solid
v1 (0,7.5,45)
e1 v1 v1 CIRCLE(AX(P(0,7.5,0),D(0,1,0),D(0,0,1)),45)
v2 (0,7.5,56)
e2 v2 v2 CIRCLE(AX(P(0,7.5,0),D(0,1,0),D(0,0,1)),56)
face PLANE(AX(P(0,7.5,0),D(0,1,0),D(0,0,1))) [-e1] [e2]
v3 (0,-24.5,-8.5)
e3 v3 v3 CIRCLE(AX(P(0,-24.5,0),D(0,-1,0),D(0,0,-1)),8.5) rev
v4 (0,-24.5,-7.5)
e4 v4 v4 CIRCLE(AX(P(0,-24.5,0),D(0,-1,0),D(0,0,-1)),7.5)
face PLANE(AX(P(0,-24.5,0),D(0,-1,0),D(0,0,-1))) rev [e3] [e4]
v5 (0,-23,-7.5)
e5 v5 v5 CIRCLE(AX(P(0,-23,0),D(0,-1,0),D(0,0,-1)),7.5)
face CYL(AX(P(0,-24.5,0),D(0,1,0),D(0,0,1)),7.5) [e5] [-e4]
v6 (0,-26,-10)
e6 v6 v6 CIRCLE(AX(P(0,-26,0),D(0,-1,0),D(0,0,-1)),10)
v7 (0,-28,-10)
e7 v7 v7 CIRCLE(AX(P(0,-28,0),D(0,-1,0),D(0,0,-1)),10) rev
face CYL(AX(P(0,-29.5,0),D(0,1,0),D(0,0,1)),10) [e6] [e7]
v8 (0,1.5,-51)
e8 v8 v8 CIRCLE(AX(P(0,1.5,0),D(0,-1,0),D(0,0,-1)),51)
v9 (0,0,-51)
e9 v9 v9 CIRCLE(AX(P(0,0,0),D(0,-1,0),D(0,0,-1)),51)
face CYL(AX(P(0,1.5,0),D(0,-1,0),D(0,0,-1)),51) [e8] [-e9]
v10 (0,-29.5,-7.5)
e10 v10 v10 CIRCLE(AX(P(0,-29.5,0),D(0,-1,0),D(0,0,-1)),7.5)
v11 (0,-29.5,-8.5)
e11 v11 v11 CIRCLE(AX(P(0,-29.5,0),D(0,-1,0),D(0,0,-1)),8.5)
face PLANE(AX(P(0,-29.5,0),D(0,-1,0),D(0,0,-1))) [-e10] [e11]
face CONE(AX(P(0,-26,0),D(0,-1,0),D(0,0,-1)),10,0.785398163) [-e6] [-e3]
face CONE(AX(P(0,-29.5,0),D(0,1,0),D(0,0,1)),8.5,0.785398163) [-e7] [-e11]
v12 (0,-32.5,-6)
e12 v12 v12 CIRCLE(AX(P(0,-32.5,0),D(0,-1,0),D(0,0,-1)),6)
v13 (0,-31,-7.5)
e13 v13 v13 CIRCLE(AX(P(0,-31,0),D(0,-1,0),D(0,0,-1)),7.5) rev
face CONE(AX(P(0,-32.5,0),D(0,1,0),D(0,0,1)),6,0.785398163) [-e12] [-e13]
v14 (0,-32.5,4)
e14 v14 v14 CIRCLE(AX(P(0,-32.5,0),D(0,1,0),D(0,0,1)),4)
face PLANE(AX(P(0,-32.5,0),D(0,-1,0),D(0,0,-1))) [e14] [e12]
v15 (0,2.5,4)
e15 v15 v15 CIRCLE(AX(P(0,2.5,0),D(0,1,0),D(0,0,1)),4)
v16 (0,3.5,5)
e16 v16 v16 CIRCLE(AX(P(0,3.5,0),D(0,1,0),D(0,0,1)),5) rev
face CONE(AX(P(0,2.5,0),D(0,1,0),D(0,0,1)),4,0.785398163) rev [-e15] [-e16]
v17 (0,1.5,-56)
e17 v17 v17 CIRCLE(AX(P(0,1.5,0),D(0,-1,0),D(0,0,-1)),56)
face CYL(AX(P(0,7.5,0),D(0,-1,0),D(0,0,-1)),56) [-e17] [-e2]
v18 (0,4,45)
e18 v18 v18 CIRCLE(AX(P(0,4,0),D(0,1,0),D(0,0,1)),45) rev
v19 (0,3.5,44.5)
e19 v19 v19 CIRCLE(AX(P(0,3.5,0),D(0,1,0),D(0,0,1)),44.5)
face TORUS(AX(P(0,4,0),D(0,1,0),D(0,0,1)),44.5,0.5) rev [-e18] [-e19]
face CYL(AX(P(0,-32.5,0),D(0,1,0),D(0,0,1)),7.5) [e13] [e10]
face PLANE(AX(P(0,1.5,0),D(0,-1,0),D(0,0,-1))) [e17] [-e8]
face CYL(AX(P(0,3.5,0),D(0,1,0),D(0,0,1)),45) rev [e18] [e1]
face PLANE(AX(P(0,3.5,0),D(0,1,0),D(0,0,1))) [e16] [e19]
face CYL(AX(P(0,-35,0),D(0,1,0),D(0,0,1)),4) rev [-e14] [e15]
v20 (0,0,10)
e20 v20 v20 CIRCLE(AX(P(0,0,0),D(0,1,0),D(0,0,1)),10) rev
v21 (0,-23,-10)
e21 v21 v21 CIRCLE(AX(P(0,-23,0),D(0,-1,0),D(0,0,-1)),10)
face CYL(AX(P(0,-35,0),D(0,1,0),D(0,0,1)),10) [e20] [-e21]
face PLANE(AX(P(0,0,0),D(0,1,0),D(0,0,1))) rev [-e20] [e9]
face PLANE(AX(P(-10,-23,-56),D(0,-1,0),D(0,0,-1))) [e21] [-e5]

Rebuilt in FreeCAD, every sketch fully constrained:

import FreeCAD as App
import Part
import Sketcher
from FreeCAD import Vector
Q = App.Units.Quantity


def edges_at(feature, points):
    """Names of the edges that pass closest to the given points."""
    edges = feature.Shape.Edges
    near = lambda p: min(range(len(edges)), key=lambda i: edges[i].distToShape(Part.Vertex(*p))[0])
    return sorted({f"Edge{near(p) + 1}" for p in points})

doc = App.newDocument("Part")
params = doc.addObject("Spreadsheet::Sheet", "Params")
for row, (alias, value) in enumerate([
    ("sketch1_diameter", "112 mm"),
    ("pad1_length", "7.5 mm"),
    ("sketch2_diameter", "20 mm"),
    ("pad2_length", "35 mm"),
    ("sketch3_diameter", "90 mm"),
    ("pocket1_length", "4 mm"),
    ("sketch4_diameter", "8 mm"),
    ("chamfer_size", "1 mm"),
    ("sketch5_length", "1.5 mm"),
    ("sketch5_height", "2.75 mm"),
    ("sketch6_height", "1 mm"),
    ("sketch6_width", "1.75 mm"),
    ("sketch6_length", "1.25 mm"),
    ("sketch7_width", "20 mm"),
    ("sketch8_diameter", "15 mm"),
    ("pad3_length", "1.5 mm"),
    ("sketch9_diameter", "20 mm"),
    ("pad4_length", "5 mm"),
    ("sketch10_diameter", "15 mm"),
    ("pad5_length", "3 mm"),
    ("chamfer2_size", "1.5 mm"),
    ("chamfer3_size", "1.5 mm"),
    ("chamfer4_size", "1.5 mm"),
    ("sketch11_diameter", "8 mm"),
    ("sketch12_diameter", "102 mm"),
    ("pocket7_length", "1.5 mm"),
    ("fillet_radius", "0.5 mm"),
], start=1):
    params.set(f"A{row}", alias)
    params.set(f"B{row}", "=" + value)
    params.setAlias(f"B{row}", alias)

body = doc.addObject("PartDesign::Body", "Body")

sketch1 = body.newObject("Sketcher::SketchObject", "Sketch")
sketch1.AttachmentSupport = (doc.getObject("XZ_Plane"), [""])
sketch1.MapMode = "FlatFace"
sketch1.addGeometry(Part.Circle(Vector(0, 0, 0), Vector(0, 0, 1), 56), False)
sketch1.addConstraint(Sketcher.Constraint("Coincident", 0, 3, -1, 1))
sketch1.addConstraint(Sketcher.Constraint("Diameter", 0, Q("112 mm")))
sketch1.setExpression("Constraints[1]", "Params.sketch1_diameter")
pad1 = body.newObject("PartDesign::Pad", "Pad")
pad1.Profile = sketch1
pad1.setExpression("Length", "Params.pad1_length")
pad1.Reversed = True

sketch2 = body.newObject("Sketcher::SketchObject", "Sketch001")
sketch2.AttachmentSupport = (doc.getObject("XZ_Plane"), [""])
sketch2.MapMode = "FlatFace"
sketch2.addGeometry(Part.Circle(Vector(0, 0, 0), Vector(0, 0, 1), 10), False)
sketch2.addConstraint(Sketcher.Constraint("Coincident", 0, 3, -1, 1))
sketch2.addConstraint(Sketcher.Constraint("Diameter", 0, Q("20 mm")))
sketch2.setExpression("Constraints[1]", "Params.sketch2_diameter")
pad2 = body.newObject("PartDesign::Pad", "Pad001")
pad2.Profile = sketch2
pad2.setExpression("Length", "Params.pad2_length")

sketch3 = body.newObject("Sketcher::SketchObject", "Sketch002")
sketch3.AttachmentSupport = (doc.getObject("XZ_Plane"), [""])
sketch3.MapMode = "FlatFace"
sketch3.AttachmentOffset = App.Placement(Vector(0, 0, -7.5), App.Rotation())
sketch3.addGeometry(Part.Circle(Vector(0, 0, 0), Vector(0, 0, 1), 45), False)
sketch3.addConstraint(Sketcher.Constraint("Coincident", 0, 3, -1, 1))
sketch3.addConstraint(Sketcher.Constraint("Diameter", 0, Q("90 mm")))
sketch3.setExpression("Constraints[1]", "Params.sketch3_diameter")
pocket1 = body.newObject("PartDesign::Pocket", "Pocket")
pocket1.Profile = sketch3
pocket1.setExpression("Length", "Params.pocket1_length")
pocket1.Reversed = True

sketch4 = body.newObject("Sketcher::SketchObject", "Sketch003")
sketch4.AttachmentSupport = (doc.getObject("XZ_Plane"), [""])
sketch4.MapMode = "FlatFace"
sketch4.AttachmentOffset = App.Placement(Vector(0, 0, -3.5), App.Rotation())
sketch4.addGeometry(Part.Circle(Vector(0, 0, 0), Vector(0, 0, 1), 4), False)
sketch4.addConstraint(Sketcher.Constraint("Coincident", 0, 3, -1, 1))
sketch4.addConstraint(Sketcher.Constraint("Diameter", 0, Q("8 mm")))
sketch4.setExpression("Constraints[1]", "Params.sketch4_diameter")
pocket2 = body.newObject("PartDesign::Pocket", "Pocket001")
pocket2.Profile = sketch4
pocket2.Type = "ThroughAll"
pocket2.Reversed = True
doc.recompute()

chamfer = body.newObject("PartDesign::Chamfer", "Chamfer")
chamfer.Base = (pocket2, edges_at(pocket2, [(0, 3.5, -4)]))
chamfer.setExpression("Size", "Params.chamfer_size")

sketch5 = body.newObject("Sketcher::SketchObject", "Sketch004")
sketch5.AttachmentSupport = (doc.getObject("XY_Plane"), [""])
sketch5.MapMode = "FlatFace"
sketch5.AttachmentOffset = App.Placement(Vector(0, 0, 10), App.Rotation())
sketch5.addGeometry(Part.LineSegment(Vector(-8.93934, -23, 0), Vector(-10, -23, 0)), False)
sketch5.addGeometry(Part.LineSegment(Vector(-10, -23, 0), Vector(-10, -25.75, 0)), False)
sketch5.addGeometry(Part.LineSegment(Vector(-10, -25.75, 0), Vector(-8.93934, -24.68934, 0)), False)
sketch5.addGeometry(Part.LineSegment(Vector(-8.93934, -24.68934, 0), Vector(-8.93934, -23, 0)), False)
sketch5.addConstraint(Sketcher.Constraint("Coincident", 0, 2, 1, 1))
sketch5.addConstraint(Sketcher.Constraint("Coincident", 1, 2, 2, 1))
sketch5.addConstraint(Sketcher.Constraint("Coincident", 2, 2, 3, 1))
sketch5.addConstraint(Sketcher.Constraint("Coincident", 3, 2, 0, 1))
sketch5.addConstraint(Sketcher.Constraint("Horizontal", 0))
sketch5.addConstraint(Sketcher.Constraint("Vertical", 1))
sketch5.addConstraint(Sketcher.Constraint("Vertical", 3))
sketch5.addConstraint(Sketcher.Constraint("Angle", 2, Q("45 deg")))
sketch5.addConstraint(Sketcher.Constraint("DistanceX", 0, 2, -1, 1, Q("10 mm")))
sketch5.addConstraint(Sketcher.Constraint("DistanceY", 0, 2, -1, 1, Q("23 mm")))
sketch5.addConstraint(Sketcher.Constraint("Distance", 2, Q("1.5 mm")))
sketch5.addConstraint(Sketcher.Constraint("DistanceY", 1, 2, 1, 1, Q("2.75 mm")))
sketch5.setExpression("Constraints[10]", "Params.sketch5_length")
sketch5.setExpression("Constraints[11]", "Params.sketch5_height")
pocket3 = body.newObject("PartDesign::Pocket", "Pocket002")
pocket3.Profile = sketch5
pocket3.Type = "ThroughAll"
doc.recompute()

mirrored = body.newObject("PartDesign::Mirrored", "Mirrored")
mirrored.Originals = [pocket3]
mirrored.MirrorPlane = (doc.getObject("YZ_Plane"), [""])
body.Tip = mirrored

sketch6 = body.newObject("Sketcher::SketchObject", "Sketch005")
sketch6.AttachmentSupport = (doc.getObject("XY_Plane"), [""])
sketch6.MapMode = "FlatFace"
sketch6.AttachmentOffset = App.Placement(Vector(0, 0, 10), App.Rotation())
sketch6.addGeometry(Part.LineSegment(Vector(-10, -32.25, 0), Vector(-10, -35, 0)), False)
sketch6.addGeometry(Part.LineSegment(Vector(-10, -35, 0), Vector(-8.25, -35, 0)), False)
sketch6.addGeometry(Part.LineSegment(Vector(-8.25, -35, 0), Vector(-9.116117, -34.133883, 0)), False)
sketch6.addGeometry(Part.LineSegment(Vector(-9.116117, -34.133883, 0), Vector(-9.116117, -33.133883, 0)), False)
sketch6.addGeometry(Part.LineSegment(Vector(-9.116117, -33.133883, 0), Vector(-10, -32.25, 0)), False)
sketch6.addConstraint(Sketcher.Constraint("Coincident", 0, 2, 1, 1))
sketch6.addConstraint(Sketcher.Constraint("Coincident", 1, 2, 2, 1))
sketch6.addConstraint(Sketcher.Constraint("Coincident", 2, 2, 3, 1))
sketch6.addConstraint(Sketcher.Constraint("Coincident", 3, 2, 4, 1))
sketch6.addConstraint(Sketcher.Constraint("Coincident", 4, 2, 0, 1))
sketch6.addConstraint(Sketcher.Constraint("Vertical", 0))
sketch6.addConstraint(Sketcher.Constraint("Horizontal", 1))
sketch6.addConstraint(Sketcher.Constraint("Vertical", 3))
sketch6.addConstraint(Sketcher.Constraint("Parallel", 2, 4))
sketch6.addConstraint(Sketcher.Constraint("DistanceY", 3, 1, 3, 2, Q("1 mm")))
sketch6.addConstraint(Sketcher.Constraint("Angle", 2, Q("135 deg")))
sketch6.addConstraint(Sketcher.Constraint("DistanceX", 0, 2, -1, 1, Q("10 mm")))
sketch6.addConstraint(Sketcher.Constraint("DistanceY", 0, 2, -1, 1, Q("35 mm")))
sketch6.addConstraint(Sketcher.Constraint("DistanceX", 1, 1, 1, 2, Q("1.75 mm")))
sketch6.addConstraint(Sketcher.Constraint("Distance", 4, Q("1.25 mm")))
sketch6.setExpression("Constraints[9]", "Params.sketch6_height")
sketch6.setExpression("Constraints[13]", "Params.sketch6_width")
sketch6.setExpression("Constraints[14]", "Params.sketch6_length")
pocket4 = body.newObject("PartDesign::Pocket", "Pocket003")
pocket4.Profile = sketch6
pocket4.Type = "ThroughAll"
doc.recompute()

mirrored2 = body.newObject("PartDesign::Mirrored", "Mirrored001")
mirrored2.Originals = [pocket4]
mirrored2.MirrorPlane = (doc.getObject("YZ_Plane"), [""])
body.Tip = mirrored2

sketch7 = body.newObject("Sketcher::SketchObject", "Sketch006")
sketch7.AttachmentSupport = (doc.getObject("XY_Plane"), [""])
sketch7.MapMode = "FlatFace"
sketch7.AttachmentOffset = App.Placement(Vector(0, 0, 10), App.Rotation())
sketch7.addGeometry(Part.LineSegment(Vector(-10, -23, 0), Vector(-10, -35.483117, 0)), False)
sketch7.addGeometry(Part.LineSegment(Vector(-10, -35.483117, 0), Vector(10, -35.483117, 0)), False)
sketch7.addGeometry(Part.LineSegment(Vector(10, -35.483117, 0), Vector(10, -23, 0)), False)
sketch7.addGeometry(Part.LineSegment(Vector(10, -23, 0), Vector(-10, -23, 0)), False)
sketch7.addConstraint(Sketcher.Constraint("Coincident", 0, 2, 1, 1))
sketch7.addConstraint(Sketcher.Constraint("Coincident", 1, 2, 2, 1))
sketch7.addConstraint(Sketcher.Constraint("Coincident", 2, 2, 3, 1))
sketch7.addConstraint(Sketcher.Constraint("Coincident", 3, 2, 0, 1))
sketch7.addConstraint(Sketcher.Constraint("Vertical", 0))
sketch7.addConstraint(Sketcher.Constraint("Horizontal", 1))
sketch7.addConstraint(Sketcher.Constraint("Vertical", 2))
sketch7.addConstraint(Sketcher.Constraint("Horizontal", 3))
sketch7.addConstraint(Sketcher.Constraint("DistanceX", 1, 1, 1, 2, Q("20 mm")))
sketch7.addConstraint(Sketcher.Constraint("DistanceX", 0, 2, -1, 1, Q("10 mm")))
sketch7.addConstraint(Sketcher.Constraint("DistanceY", 2, 2, -1, 1, Q("23 mm")))
sketch7.addConstraint(Sketcher.Constraint("DistanceY", 0, 2, 0, 1, Q("12.483117 mm")))
sketch7.setExpression("Constraints[8]", "Params.sketch7_width")
pocket5 = body.newObject("PartDesign::Pocket", "Pocket004")
pocket5.Profile = sketch7
pocket5.Type = "ThroughAll"

sketch8 = body.newObject("Sketcher::SketchObject", "Sketch007")
sketch8.AttachmentSupport = (doc.getObject("XZ_Plane"), [""])
sketch8.MapMode = "FlatFace"
sketch8.AttachmentOffset = App.Placement(Vector(0, 0, 23), App.Rotation())
sketch8.addGeometry(Part.Circle(Vector(0, 0, 0), Vector(0, 0, 1), 7.5), False)
sketch8.addConstraint(Sketcher.Constraint("Coincident", 0, 3, -1, 1))
sketch8.addConstraint(Sketcher.Constraint("Diameter", 0, Q("15 mm")))
sketch8.setExpression("Constraints[1]", "Params.sketch8_diameter")
pad3 = body.newObject("PartDesign::Pad", "Pad002")
pad3.Profile = sketch8
pad3.setExpression("Length", "Params.pad3_length")

sketch9 = body.newObject("Sketcher::SketchObject", "Sketch008")
sketch9.AttachmentSupport = (doc.getObject("XZ_Plane"), [""])
sketch9.MapMode = "FlatFace"
sketch9.AttachmentOffset = App.Placement(Vector(0, 0, 24.5), App.Rotation())
sketch9.addGeometry(Part.Circle(Vector(0, 0, 0), Vector(0, 0, 1), 10), False)
sketch9.addConstraint(Sketcher.Constraint("Coincident", 0, 3, -1, 1))
sketch9.addConstraint(Sketcher.Constraint("Diameter", 0, Q("20 mm")))
sketch9.setExpression("Constraints[1]", "Params.sketch9_diameter")
pad4 = body.newObject("PartDesign::Pad", "Pad003")
pad4.Profile = sketch9
pad4.setExpression("Length", "Params.pad4_length")

sketch10 = body.newObject("Sketcher::SketchObject", "Sketch009")
sketch10.AttachmentSupport = (doc.getObject("XZ_Plane"), [""])
sketch10.MapMode = "FlatFace"
sketch10.AttachmentOffset = App.Placement(Vector(0, 0, 29.5), App.Rotation())
sketch10.addGeometry(Part.Circle(Vector(0, 0, 0), Vector(0, 0, 1), 7.5), False)
sketch10.addConstraint(Sketcher.Constraint("Coincident", 0, 3, -1, 1))
sketch10.addConstraint(Sketcher.Constraint("Diameter", 0, Q("15 mm")))
sketch10.setExpression("Constraints[1]", "Params.sketch10_diameter")
pad5 = body.newObject("PartDesign::Pad", "Pad004")
pad5.Profile = sketch10
pad5.setExpression("Length", "Params.pad5_length")
doc.recompute()

chamfer2 = body.newObject("PartDesign::Chamfer", "Chamfer001")
chamfer2.Base = (pad5, edges_at(pad5, [(0, -32.5, 7.5)]))
chamfer2.setExpression("Size", "Params.chamfer2_size")
doc.recompute()

chamfer3 = body.newObject("PartDesign::Chamfer", "Chamfer002")
chamfer3.Base = (chamfer2, edges_at(chamfer2, [(0, -24.5, -10)]))
chamfer3.setExpression("Size", "Params.chamfer3_size")
doc.recompute()

chamfer4 = body.newObject("PartDesign::Chamfer", "Chamfer003")
chamfer4.Base = (chamfer3, edges_at(chamfer3, [(0, -29.5, -10)]))
chamfer4.setExpression("Size", "Params.chamfer4_size")

sketch11 = body.newObject("Sketcher::SketchObject", "Sketch010")
sketch11.AttachmentSupport = (doc.getObject("XZ_Plane"), [""])
sketch11.MapMode = "FlatFace"
sketch11.AttachmentOffset = App.Placement(Vector(0, 0, 23), App.Rotation())
sketch11.addGeometry(Part.Circle(Vector(0, 0, 0), Vector(0, 0, 1), 4), False)
sketch11.addConstraint(Sketcher.Constraint("Coincident", 0, 3, -1, 1))
sketch11.addConstraint(Sketcher.Constraint("Diameter", 0, Q("8 mm")))
sketch11.setExpression("Constraints[1]", "Params.sketch11_diameter")
pocket6 = body.newObject("PartDesign::Pocket", "Pocket005")
pocket6.Profile = sketch11
pocket6.Type = "ThroughAll"
pocket6.Reversed = True

sketch12 = body.newObject("Sketcher::SketchObject", "Sketch011")
sketch12.AttachmentSupport = (doc.getObject("XZ_Plane"), [""])
sketch12.MapMode = "FlatFace"
sketch12.addGeometry(Part.LineSegment(Vector(-73.336, 73.336, 0), Vector(-73.336, -73.336, 0)), False)
sketch12.addGeometry(Part.LineSegment(Vector(-73.336, -73.336, 0), Vector(73.336, -73.336, 0)), False)
sketch12.addGeometry(Part.LineSegment(Vector(73.336, -73.336, 0), Vector(73.336, 73.336, 0)), False)
sketch12.addGeometry(Part.LineSegment(Vector(73.336, 73.336, 0), Vector(-73.336, 73.336, 0)), False)
sketch12.addGeometry(Part.Circle(Vector(0, 0, 0), Vector(0, 0, 1), 51), False)
sketch12.addConstraint(Sketcher.Constraint("Coincident", 0, 2, 1, 1))
sketch12.addConstraint(Sketcher.Constraint("Coincident", 1, 2, 2, 1))
sketch12.addConstraint(Sketcher.Constraint("Coincident", 2, 2, 3, 1))
sketch12.addConstraint(Sketcher.Constraint("Coincident", 3, 2, 0, 1))
sketch12.addConstraint(Sketcher.Constraint("Vertical", 0))
sketch12.addConstraint(Sketcher.Constraint("Horizontal", 1))
sketch12.addConstraint(Sketcher.Constraint("Vertical", 2))
sketch12.addConstraint(Sketcher.Constraint("Horizontal", 3))
sketch12.addConstraint(Sketcher.Constraint("Coincident", 4, 3, -1, 1))
sketch12.addConstraint(Sketcher.Constraint("Symmetric", 0, 2, 2, 2, -1, 1))
sketch12.addConstraint(Sketcher.Constraint("Equal", 3, 0))
sketch12.addConstraint(Sketcher.Constraint("Diameter", 4, Q("102 mm")))
sketch12.addConstraint(Sketcher.Constraint("DistanceX", 1, 1, 1, 2, Q("146.672 mm")))
sketch12.setExpression("Constraints[11]", "Params.sketch12_diameter")
pocket7 = body.newObject("PartDesign::Pocket", "Pocket006")
pocket7.Profile = sketch12
pocket7.setExpression("Length", "Params.pocket7_length")
doc.recompute()

fillet = body.newObject("PartDesign::Fillet", "Fillet")
fillet.Base = (pocket7, edges_at(pocket7, [(0, 3.5, -45)]))
fillet.setExpression("Radius", "Params.fillet_radius")

doc.recompute()
